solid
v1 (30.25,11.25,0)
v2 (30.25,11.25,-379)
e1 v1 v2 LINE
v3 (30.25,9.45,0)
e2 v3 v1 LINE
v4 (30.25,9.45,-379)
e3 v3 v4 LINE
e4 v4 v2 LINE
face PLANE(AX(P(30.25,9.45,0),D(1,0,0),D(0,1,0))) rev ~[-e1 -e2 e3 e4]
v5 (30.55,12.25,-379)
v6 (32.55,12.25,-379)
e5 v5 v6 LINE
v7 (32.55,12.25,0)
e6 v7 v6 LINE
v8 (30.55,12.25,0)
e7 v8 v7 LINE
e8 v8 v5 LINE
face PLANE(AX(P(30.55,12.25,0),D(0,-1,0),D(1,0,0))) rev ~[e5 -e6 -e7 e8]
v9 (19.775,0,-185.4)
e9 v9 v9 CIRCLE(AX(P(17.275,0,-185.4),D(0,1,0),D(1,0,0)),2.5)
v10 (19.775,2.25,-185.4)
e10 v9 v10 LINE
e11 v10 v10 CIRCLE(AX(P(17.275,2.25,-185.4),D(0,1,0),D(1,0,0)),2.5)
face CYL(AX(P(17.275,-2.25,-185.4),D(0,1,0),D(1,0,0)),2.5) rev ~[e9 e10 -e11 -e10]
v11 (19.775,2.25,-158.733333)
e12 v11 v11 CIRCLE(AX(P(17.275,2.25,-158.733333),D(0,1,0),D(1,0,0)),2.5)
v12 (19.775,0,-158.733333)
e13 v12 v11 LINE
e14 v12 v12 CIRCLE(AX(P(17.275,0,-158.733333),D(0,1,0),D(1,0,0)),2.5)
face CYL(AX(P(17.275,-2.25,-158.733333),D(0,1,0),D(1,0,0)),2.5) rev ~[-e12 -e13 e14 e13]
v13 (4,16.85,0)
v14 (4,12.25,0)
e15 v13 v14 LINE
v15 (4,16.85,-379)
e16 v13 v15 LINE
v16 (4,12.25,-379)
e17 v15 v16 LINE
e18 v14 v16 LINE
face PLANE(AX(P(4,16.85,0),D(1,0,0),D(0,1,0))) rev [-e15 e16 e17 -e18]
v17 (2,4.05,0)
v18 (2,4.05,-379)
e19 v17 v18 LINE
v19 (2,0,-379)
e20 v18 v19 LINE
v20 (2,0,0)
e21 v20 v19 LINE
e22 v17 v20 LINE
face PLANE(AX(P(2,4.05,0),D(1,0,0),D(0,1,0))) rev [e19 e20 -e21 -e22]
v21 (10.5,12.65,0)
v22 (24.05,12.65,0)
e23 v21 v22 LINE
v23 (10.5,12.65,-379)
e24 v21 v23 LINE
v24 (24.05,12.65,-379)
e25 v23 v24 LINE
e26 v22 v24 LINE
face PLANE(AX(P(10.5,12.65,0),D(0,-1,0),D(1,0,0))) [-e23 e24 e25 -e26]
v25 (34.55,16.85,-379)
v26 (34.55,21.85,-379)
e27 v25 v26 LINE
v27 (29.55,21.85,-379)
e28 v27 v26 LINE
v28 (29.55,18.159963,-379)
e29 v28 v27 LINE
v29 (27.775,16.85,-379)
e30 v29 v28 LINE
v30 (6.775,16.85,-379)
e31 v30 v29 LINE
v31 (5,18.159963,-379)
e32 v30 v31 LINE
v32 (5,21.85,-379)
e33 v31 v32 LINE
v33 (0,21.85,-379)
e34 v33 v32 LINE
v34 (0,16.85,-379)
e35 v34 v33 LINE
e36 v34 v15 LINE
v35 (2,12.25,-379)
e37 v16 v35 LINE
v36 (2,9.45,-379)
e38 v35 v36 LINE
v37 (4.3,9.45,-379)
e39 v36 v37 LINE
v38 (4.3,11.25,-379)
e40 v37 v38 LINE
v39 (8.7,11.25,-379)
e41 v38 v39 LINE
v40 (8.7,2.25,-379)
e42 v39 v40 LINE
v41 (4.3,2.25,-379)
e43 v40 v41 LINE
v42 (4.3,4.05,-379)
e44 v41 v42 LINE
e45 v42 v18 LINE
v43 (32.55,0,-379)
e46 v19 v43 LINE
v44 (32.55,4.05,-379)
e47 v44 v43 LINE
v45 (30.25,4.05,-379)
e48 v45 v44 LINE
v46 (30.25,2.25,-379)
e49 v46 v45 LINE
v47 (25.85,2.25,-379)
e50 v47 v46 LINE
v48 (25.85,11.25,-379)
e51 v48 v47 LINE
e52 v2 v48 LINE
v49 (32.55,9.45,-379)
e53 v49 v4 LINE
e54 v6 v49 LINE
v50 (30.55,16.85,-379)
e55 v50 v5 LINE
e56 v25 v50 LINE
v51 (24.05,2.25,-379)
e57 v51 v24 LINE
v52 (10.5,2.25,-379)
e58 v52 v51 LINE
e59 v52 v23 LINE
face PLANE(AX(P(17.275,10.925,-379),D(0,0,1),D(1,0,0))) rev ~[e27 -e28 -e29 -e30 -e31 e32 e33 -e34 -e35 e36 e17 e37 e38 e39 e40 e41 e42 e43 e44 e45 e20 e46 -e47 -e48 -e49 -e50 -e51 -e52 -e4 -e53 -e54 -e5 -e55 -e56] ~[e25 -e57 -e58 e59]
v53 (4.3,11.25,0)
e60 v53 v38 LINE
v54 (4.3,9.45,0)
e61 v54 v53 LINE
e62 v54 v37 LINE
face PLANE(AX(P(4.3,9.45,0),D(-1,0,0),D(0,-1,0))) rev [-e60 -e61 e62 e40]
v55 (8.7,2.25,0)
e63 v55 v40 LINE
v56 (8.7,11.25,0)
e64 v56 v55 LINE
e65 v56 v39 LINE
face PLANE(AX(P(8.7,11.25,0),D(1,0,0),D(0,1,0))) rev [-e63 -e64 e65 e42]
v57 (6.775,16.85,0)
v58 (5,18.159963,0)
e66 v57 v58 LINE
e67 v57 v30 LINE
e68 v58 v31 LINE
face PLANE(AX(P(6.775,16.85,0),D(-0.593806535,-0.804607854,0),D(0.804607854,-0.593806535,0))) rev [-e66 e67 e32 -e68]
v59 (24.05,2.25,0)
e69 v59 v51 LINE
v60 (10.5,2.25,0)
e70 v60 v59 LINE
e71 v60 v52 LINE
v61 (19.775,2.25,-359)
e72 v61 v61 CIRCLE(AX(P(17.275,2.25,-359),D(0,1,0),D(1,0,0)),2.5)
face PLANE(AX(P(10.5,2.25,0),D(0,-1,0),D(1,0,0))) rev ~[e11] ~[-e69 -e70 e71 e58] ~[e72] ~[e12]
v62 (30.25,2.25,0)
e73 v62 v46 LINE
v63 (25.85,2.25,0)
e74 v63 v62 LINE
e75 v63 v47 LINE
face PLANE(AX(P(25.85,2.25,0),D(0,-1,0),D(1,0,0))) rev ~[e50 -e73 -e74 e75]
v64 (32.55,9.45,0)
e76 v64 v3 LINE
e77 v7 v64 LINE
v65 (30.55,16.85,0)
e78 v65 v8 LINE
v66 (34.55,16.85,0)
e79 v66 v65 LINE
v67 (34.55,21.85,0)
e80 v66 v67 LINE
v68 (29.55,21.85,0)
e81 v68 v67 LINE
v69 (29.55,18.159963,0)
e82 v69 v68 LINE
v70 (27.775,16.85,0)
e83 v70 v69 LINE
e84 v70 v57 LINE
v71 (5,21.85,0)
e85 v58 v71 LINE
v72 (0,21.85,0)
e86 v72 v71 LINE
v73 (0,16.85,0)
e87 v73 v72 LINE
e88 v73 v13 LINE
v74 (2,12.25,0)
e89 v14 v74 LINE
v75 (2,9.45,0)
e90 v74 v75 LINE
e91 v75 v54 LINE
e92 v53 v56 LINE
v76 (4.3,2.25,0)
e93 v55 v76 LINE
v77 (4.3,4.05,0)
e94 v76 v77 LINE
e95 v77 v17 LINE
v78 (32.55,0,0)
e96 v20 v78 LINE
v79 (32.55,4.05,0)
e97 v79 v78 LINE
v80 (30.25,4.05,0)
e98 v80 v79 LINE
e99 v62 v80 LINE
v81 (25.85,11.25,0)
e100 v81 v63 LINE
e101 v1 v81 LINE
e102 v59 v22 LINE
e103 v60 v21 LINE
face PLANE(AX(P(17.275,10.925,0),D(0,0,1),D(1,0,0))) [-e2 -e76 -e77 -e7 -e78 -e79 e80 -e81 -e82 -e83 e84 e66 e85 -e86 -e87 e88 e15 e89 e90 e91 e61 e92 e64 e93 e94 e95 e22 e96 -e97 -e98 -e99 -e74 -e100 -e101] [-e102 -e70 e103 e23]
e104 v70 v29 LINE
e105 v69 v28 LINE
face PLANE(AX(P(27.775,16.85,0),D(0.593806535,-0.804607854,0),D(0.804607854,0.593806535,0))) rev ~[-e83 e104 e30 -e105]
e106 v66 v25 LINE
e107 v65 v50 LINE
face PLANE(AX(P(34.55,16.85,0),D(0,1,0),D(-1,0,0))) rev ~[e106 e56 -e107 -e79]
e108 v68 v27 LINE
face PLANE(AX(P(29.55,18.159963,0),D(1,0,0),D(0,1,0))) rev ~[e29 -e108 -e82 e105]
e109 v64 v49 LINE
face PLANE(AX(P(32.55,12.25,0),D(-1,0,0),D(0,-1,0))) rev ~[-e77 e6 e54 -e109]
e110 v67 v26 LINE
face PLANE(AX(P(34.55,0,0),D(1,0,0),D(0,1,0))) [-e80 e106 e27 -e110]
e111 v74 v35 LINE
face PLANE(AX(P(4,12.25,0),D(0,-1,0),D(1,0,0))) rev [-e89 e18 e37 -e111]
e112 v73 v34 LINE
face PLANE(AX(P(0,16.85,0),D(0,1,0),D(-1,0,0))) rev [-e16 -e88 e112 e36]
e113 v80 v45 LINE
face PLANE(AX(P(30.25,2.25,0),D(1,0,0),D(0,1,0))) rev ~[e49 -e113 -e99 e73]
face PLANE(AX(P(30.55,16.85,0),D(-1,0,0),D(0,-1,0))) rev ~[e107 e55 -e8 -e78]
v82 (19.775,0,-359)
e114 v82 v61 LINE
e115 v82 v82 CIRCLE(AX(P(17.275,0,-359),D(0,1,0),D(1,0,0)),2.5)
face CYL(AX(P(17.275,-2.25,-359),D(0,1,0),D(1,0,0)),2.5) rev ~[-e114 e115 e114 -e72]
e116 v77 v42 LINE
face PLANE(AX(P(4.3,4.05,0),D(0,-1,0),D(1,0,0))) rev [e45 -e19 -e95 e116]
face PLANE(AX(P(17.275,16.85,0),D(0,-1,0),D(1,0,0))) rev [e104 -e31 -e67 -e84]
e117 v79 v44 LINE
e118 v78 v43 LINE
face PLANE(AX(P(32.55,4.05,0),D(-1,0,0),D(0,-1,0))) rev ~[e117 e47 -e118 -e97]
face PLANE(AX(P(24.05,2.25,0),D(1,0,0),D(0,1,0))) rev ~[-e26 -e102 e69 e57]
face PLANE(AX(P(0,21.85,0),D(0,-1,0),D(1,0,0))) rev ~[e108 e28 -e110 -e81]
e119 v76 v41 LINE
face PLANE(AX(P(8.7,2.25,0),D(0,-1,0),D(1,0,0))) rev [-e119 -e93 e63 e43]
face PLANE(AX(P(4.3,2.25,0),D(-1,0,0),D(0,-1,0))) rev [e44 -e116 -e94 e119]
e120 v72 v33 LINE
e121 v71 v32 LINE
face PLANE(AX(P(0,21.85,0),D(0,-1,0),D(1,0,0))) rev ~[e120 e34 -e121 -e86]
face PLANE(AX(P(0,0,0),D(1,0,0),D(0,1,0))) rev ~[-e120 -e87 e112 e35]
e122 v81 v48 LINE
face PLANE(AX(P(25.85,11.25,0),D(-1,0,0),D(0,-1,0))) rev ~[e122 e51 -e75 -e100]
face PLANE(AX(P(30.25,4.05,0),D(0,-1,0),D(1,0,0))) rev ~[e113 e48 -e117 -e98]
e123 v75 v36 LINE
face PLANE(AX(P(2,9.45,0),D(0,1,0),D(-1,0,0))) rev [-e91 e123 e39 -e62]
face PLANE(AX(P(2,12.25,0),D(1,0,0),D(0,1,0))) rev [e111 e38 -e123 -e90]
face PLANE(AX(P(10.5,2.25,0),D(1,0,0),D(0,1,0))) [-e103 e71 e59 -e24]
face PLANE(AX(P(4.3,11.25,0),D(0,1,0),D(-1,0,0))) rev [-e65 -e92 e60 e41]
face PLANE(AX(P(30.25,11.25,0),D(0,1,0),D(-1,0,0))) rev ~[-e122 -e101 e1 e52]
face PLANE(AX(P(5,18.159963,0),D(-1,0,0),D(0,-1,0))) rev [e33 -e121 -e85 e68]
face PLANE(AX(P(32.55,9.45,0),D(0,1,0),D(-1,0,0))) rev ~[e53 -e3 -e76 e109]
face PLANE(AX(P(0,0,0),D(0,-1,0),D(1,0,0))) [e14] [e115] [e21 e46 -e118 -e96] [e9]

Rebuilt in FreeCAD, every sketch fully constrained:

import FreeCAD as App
import Part
import Sketcher


def add_polygon(sketch, points):
    """Adds a closed chain of lines whose ends are joined by coincident constraints."""
    first, n = sketch.GeometryCount, len(points)
    for a, b in zip(points, points[1:] + points[:1]):
        sketch.addGeometry(Part.LineSegment(App.Vector(*a, 0), App.Vector(*b, 0)), False)
    for i in range(n):
        sketch.addConstraint(Sketcher.Constraint("Coincident", first + i, 2, first + (i + 1) % n, 1))

doc = App.newDocument("Part")
body = doc.addObject("PartDesign::Body", "Body")

# Sketch on XY plane
sketch1 = doc.addObject("Sketcher::SketchObject", "Sketch")
body.addObject(sketch1)
sketch1.AttachmentSupport = (doc.XY_Plane, [""])
sketch1.MapMode = "FlatFace"
add_polygon(sketch1, [(0, 22), (0, 0), (35, 0), (35, 22)])  # lines 0-3
sketch1.addConstraint(Sketcher.Constraint("Vertical", 0))
sketch1.addConstraint(Sketcher.Constraint("Horizontal", 1))
sketch1.addConstraint(Sketcher.Constraint("Vertical", 2))
sketch1.addConstraint(Sketcher.Constraint("Horizontal", 3))
sketch1.addConstraint(Sketcher.Constraint("Coincident", 0, 2, -1, 1))
sketch1.addConstraint(Sketcher.Constraint("DistanceX", 1, 1, 1, 2, 34.55))
sketch1.addConstraint(Sketcher.Constraint("DistanceY", 0, 2, 0, 1, 21.85))
pad1 = doc.addObject("PartDesign::Pad", "Pad")
body.addObject(pad1)
pad1.Profile = sketch1
pad1.Length = 379
pad1.Reversed = True

# Sketch on XY plane
sketch2 = doc.addObject("Sketcher::SketchObject", "Sketch001")
body.addObject(sketch2)
sketch2.AttachmentSupport = (doc.XY_Plane, [""])
sketch2.MapMode = "FlatFace"
add_polygon(sketch2, [(29.6, 21.9), (17.3, 21.9), (17.3, 16.9), (27.8, 16.9), (29.6, 18.2)])  # lines 0-4
add_polygon(sketch2, [(34.5, 0), (34.5, 16.9), (30.6, 16.9), (30.6, 12.2), (32.5, 12.2), (32.5, 9.4), (30.2, 9.4), (30.2, 11.2), (25.9, 11.2), (25.9, 2.2), (30.2, 2.2), (30.2, 4), (32.5, 4), (32.5, 0)])  # lines 5-18
sketch2.addConstraint(Sketcher.Constraint("Horizontal", 0))
sketch2.addConstraint(Sketcher.Constraint("Vertical", 1))
sketch2.addConstraint(Sketcher.Constraint("Horizontal", 2))
sketch2.addConstraint(Sketcher.Constraint("Vertical", 4))
sketch2.addConstraint(Sketcher.Constraint("Vertical", 5))
sketch2.addConstraint(Sketcher.Constraint("Horizontal", 6))
sketch2.addConstraint(Sketcher.Constraint("Vertical", 7))
sketch2.addConstraint(Sketcher.Constraint("Horizontal", 8))
sketch2.addConstraint(Sketcher.Constraint("Vertical", 9))
sketch2.addConstraint(Sketcher.Constraint("Horizontal", 10))
sketch2.addConstraint(Sketcher.Constraint("Vertical", 11))
sketch2.addConstraint(Sketcher.Constraint("Horizontal", 12))
sketch2.addConstraint(Sketcher.Constraint("Vertical", 13))
sketch2.addConstraint(Sketcher.Constraint("Horizontal", 14))
sketch2.addConstraint(Sketcher.Constraint("Vertical", 15))
sketch2.addConstraint(Sketcher.Constraint("Horizontal", 16))
sketch2.addConstraint(Sketcher.Constraint("Vertical", 17))
sketch2.addConstraint(Sketcher.Constraint("Horizontal", 18))
sketch2.addConstraint(Sketcher.Constraint("PointOnObject", 17, 2, -1))
sketch2.addConstraint(Sketcher.Constraint("Horizontal", 2, 2, 5, 2))
sketch2.addConstraint(Sketcher.Constraint("Vertical", 11, 2, 14, 2))
sketch2.addConstraint(Sketcher.Constraint("Vertical", 9, 2, 16, 2))
sketch2.addConstraint(Sketcher.Constraint("Equal", 8, 18))
sketch2.addConstraint(Sketcher.Constraint("Equal", 11, 15))
sketch2.addConstraint(Sketcher.Constraint("DistanceX", 6, 2, 6, 1, 4.0))
sketch2.addConstraint(Sketcher.Constraint("DistanceY", 1, 2, 1, 1, 5.0))
sketch2.addConstraint(Sketcher.Constraint("DistanceY", 13, 2, 13, 1, 9.0))
sketch2.addConstraint(Sketcher.Constraint("DistanceX", 2, 1, 2, 2, 10.5))
sketch2.addConstraint(Sketcher.Constraint("DistanceX", 10, 2, 10, 1, 2.3))
sketch2.addConstraint(Sketcher.Constraint("DistanceX", 12, 2, 12, 1, 4.4))
sketch2.addConstraint(Sketcher.Constraint("DistanceY", 7, 2, 7, 1, 4.6))
sketch2.addConstraint(Sketcher.Constraint("DistanceY", 9, 2, 9, 1, 2.8))
sketch2.addConstraint(Sketcher.Constraint("DistanceY", 11, 1, 11, 2, 1.8))
sketch2.addConstraint(Sketcher.Constraint("DistanceX", 3, 2, 5, 2, 5.0))
sketch2.addConstraint(Sketcher.Constraint("DistanceY", 5, 1, 5, 2, 16.85))
sketch2.addConstraint(Sketcher.Constraint("DistanceX", 0, 2, 0, 1, 12.275))
sketch2.addConstraint(Sketcher.Constraint("DistanceX", -1, 1, 3, 2, 29.55))
sketch2.addConstraint(Sketcher.Constraint("DistanceY", 4, 1, 4, 2, 3.690037))
pocket1 = doc.addObject("PartDesign::Pocket", "Pocket")
body.addObject(pocket1)
pocket1.Profile = sketch2
pocket1.Length = 379
doc.recompute()

datumplane = doc.addObject("PartDesign::Plane", "DatumPlane")
body.addObject(datumplane)
datumplane.AttachmentSupport = (doc.YZ_Plane, [""])
datumplane.MapMode = "FlatFace"
datumplane.AttachmentOffset = App.Placement(App.Vector(0, 0, 17.275), App.Rotation())
mirrored = doc.addObject("PartDesign::Mirrored", "Mirrored")
body.addObject(mirrored)
mirrored.Originals = [pocket1]
mirrored.MirrorPlane = (datumplane, [""])
body.Tip = mirrored

# Sketch on XY plane
sketch3 = doc.addObject("Sketcher::SketchObject", "Sketch002")
body.addObject(sketch3)
sketch3.AttachmentSupport = (doc.XY_Plane, [""])
sketch3.MapMode = "FlatFace"
add_polygon(sketch3, [(10, 13), (10, 2), (24, 2), (24, 13)])  # lines 0-3
sketch3.addConstraint(Sketcher.Constraint("Vertical", 0))
sketch3.addConstraint(Sketcher.Constraint("Horizontal", 1))
sketch3.addConstraint(Sketcher.Constraint("Vertical", 2))
sketch3.addConstraint(Sketcher.Constraint("Horizontal", 3))
sketch3.addConstraint(Sketcher.Constraint("DistanceY", 0, 2, 0, 1, 10.4))
sketch3.addConstraint(Sketcher.Constraint("DistanceX", 1, 1, 1, 2, 13.55))
sketch3.addConstraint(Sketcher.Constraint("DistanceX", -1, 1, 0, 2, 10.5))
sketch3.addConstraint(Sketcher.Constraint("DistanceY", -1, 1, 0, 2, 2.25))
pocket2 = doc.addObject("PartDesign::Pocket", "Pocket001")
body.addObject(pocket2)
pocket2.Profile = sketch3
pocket2.Length = 379

# Sketch on XZ plane
sketch4 = doc.addObject("Sketcher::SketchObject", "Sketch003")
body.addObject(sketch4)
sketch4.AttachmentSupport = (doc.XZ_Plane, [""])
sketch4.MapMode = "FlatFace"
sketch4.addGeometry(Part.Circle(App.Vector(17.3, -359, 0), App.Vector(0, 0, 1), 2.5), False)
sketch4.addGeometry(Part.Circle(App.Vector(17.3, -185.4, 0), App.Vector(0, 0, 1), 2.5), False)
sketch4.addGeometry(Part.Circle(App.Vector(17.3, -158.7, 0), App.Vector(0, 0, 1), 2.5), False)
sketch4.addConstraint(Sketcher.Constraint("Equal", 0, 1))
sketch4.addConstraint(Sketcher.Constraint("Equal", 1, 2))
sketch4.addConstraint(Sketcher.Constraint("Vertical", 0, 3, 1, 3))
sketch4.addConstraint(Sketcher.Constraint("Vertical", 1, 3, 2, 3))
sketch4.addConstraint(Sketcher.Constraint("Diameter", 0, 5.0))
sketch4.addConstraint(Sketcher.Constraint("DistanceY", 0, 3, -1, 1, 359.0))
sketch4.addConstraint(Sketcher.Constraint("DistanceY", 1, 3, -1, 1, 185.4))
sketch4.addConstraint(Sketcher.Constraint("DistanceX", -1, 1, 0, 3, 17.275))
sketch4.addConstraint(Sketcher.Constraint("DistanceY", 2, 3, -1, 1, 158.733333))
doc.recompute()
hole = doc.addObject("PartDesign::Hole", "Hole")
body.addObject(hole)
hole.Profile = sketch4
hole.ThreadType = "None"
hole.Diameter = 5
hole.DepthType = "Dimension"
hole.Depth = 2.25
hole.DrillPoint = "Flat"

doc.recompute()
